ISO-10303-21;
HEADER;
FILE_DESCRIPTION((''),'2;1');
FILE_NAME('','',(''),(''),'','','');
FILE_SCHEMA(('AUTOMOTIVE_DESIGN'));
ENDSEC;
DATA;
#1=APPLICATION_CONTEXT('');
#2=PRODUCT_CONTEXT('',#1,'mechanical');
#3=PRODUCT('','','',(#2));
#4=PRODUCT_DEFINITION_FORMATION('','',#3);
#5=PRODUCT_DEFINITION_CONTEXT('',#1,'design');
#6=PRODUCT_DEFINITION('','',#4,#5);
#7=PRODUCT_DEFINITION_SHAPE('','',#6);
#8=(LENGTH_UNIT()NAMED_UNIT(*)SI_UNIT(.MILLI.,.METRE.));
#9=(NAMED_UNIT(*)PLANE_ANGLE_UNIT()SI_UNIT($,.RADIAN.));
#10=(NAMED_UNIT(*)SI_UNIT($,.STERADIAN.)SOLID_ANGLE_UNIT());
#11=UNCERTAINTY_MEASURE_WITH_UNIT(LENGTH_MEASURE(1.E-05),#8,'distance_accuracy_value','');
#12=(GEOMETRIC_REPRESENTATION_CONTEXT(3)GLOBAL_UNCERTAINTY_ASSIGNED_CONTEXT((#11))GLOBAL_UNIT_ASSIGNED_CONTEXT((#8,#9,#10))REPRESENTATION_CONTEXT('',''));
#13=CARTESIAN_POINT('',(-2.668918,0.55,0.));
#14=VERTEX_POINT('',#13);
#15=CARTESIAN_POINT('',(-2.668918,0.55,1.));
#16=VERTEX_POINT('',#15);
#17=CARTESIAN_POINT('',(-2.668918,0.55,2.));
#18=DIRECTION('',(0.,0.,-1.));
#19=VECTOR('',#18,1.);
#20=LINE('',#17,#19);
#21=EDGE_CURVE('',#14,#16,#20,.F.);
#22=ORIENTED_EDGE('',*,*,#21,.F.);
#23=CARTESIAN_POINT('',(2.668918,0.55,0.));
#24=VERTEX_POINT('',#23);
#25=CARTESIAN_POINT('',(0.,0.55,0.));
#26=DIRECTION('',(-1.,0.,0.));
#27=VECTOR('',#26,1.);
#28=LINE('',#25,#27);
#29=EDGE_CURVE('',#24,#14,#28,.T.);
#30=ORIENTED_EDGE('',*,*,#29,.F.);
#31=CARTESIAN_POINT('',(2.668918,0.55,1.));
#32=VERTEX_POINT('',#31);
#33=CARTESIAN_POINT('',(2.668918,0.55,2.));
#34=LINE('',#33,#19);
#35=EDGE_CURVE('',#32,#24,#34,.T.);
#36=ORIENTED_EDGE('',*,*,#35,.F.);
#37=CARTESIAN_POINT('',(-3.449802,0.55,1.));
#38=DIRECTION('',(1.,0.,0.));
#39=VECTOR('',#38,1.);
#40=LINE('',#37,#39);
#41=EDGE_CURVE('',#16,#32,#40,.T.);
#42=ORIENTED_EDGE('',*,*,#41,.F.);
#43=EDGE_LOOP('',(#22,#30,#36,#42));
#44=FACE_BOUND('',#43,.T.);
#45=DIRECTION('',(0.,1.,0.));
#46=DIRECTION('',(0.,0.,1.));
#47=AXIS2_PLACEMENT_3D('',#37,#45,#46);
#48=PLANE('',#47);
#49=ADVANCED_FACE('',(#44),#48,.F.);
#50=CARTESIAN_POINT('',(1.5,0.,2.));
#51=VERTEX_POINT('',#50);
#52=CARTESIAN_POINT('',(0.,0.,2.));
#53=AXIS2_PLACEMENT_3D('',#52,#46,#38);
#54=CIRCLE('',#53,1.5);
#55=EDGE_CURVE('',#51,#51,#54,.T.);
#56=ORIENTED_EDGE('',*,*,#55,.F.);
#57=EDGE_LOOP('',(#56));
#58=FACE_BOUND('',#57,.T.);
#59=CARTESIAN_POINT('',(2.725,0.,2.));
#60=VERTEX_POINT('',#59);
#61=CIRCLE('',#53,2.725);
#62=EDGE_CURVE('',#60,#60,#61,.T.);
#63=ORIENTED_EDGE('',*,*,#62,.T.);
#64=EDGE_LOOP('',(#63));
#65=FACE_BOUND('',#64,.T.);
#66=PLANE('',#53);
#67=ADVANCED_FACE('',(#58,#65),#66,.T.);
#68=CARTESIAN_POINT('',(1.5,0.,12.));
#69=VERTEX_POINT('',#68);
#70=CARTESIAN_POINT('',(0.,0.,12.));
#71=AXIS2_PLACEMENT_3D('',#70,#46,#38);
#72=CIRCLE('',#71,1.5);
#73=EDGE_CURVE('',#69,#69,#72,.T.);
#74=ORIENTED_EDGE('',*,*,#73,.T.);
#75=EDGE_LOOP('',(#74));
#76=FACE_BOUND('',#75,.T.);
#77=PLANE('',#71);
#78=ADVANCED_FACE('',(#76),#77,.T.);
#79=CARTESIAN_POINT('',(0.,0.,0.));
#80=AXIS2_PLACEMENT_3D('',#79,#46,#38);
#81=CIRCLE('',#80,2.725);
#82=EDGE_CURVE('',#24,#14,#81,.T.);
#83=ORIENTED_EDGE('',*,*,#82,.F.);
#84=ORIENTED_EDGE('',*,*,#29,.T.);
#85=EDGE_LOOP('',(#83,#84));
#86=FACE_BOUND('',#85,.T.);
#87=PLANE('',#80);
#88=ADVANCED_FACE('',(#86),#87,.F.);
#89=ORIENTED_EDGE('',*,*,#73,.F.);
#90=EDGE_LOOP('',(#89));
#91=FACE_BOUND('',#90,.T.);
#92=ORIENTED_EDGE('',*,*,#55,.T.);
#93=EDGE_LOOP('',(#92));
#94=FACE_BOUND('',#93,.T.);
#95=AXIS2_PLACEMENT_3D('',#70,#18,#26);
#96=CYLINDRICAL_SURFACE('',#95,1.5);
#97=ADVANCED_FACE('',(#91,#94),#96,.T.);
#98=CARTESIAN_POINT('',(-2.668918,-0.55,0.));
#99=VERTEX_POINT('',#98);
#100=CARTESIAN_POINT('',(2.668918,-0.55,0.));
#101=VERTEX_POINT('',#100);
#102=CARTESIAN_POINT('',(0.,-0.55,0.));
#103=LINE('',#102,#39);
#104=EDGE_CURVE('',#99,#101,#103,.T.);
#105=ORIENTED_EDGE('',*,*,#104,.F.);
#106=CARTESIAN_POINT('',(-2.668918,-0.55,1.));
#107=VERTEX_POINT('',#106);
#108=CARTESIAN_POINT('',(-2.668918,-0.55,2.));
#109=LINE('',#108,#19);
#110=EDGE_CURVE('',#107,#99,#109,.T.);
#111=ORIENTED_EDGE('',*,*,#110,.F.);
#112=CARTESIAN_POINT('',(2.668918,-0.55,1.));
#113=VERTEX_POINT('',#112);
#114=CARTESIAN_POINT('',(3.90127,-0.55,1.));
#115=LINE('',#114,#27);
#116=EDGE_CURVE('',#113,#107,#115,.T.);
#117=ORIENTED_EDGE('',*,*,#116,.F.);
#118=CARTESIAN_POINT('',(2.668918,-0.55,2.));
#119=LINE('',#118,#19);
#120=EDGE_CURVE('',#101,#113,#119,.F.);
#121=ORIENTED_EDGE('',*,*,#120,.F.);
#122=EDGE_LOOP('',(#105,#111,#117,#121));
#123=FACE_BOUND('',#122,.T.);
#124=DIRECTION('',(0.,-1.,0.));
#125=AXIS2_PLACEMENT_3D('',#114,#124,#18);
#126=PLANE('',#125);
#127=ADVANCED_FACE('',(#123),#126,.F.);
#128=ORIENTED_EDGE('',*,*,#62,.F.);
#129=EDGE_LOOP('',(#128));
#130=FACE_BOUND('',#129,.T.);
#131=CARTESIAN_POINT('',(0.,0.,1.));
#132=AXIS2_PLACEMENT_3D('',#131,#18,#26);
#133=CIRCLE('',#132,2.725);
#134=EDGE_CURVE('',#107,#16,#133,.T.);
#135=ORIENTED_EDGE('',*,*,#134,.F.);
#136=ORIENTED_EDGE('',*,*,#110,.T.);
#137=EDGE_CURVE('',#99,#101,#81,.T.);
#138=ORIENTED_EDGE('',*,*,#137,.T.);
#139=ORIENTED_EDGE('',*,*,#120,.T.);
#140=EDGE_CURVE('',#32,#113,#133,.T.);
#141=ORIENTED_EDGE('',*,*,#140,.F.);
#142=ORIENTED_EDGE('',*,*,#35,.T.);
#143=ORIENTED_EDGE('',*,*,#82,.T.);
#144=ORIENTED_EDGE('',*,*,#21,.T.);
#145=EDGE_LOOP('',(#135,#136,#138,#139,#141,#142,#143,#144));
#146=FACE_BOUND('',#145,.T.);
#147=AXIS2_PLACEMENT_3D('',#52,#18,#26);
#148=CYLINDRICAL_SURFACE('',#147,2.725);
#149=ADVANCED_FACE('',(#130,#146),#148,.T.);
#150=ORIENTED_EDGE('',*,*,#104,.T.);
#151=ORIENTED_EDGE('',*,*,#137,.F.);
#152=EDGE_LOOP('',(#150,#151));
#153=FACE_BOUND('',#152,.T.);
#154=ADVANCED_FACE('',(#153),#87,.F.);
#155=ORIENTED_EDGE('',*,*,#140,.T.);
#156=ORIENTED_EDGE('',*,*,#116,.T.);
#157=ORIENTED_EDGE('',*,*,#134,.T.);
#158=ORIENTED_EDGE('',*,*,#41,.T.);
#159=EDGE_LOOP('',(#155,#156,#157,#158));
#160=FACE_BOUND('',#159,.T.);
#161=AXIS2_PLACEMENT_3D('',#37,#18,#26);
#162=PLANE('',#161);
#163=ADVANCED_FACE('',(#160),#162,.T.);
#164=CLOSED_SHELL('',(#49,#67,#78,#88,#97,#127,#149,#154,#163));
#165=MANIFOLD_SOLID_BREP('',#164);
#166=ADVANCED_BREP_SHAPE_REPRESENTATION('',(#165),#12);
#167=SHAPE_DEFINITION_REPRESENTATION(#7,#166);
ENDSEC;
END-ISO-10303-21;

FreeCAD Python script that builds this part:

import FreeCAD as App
import Part
import Sketcher

V = App.Vector


def add_polygon(sketch, points):
    """Adds a closed chain of lines whose ends are joined by coincident constraints."""
    first, n = sketch.GeometryCount, len(points)
    for a, b in zip(points, points[1:] + points[:1]):
        sketch.addGeometry(Part.LineSegment(App.Vector(*a, 0), App.Vector(*b, 0)), False)
    for i in range(n):
        sketch.addConstraint(Sketcher.Constraint("Coincident", first + i, 2, first + (i + 1) % n, 1))

doc = App.newDocument("Part")
body = doc.addObject("PartDesign::Body", "Body")

# Sketch on XY plane
sketch1 = body.newObject("Sketcher::SketchObject", "Sketch")
sketch1.AttachmentSupport = (doc.getObject("XY_Plane"), [""])
sketch1.MapMode = "FlatFace"
sketch1.addGeometry(Part.Circle(V(0, 0, 0), V(0, 0, 1), 2.7), False)
sketch1.addConstraint([
    Sketcher.Constraint("Coincident", 0, 3, -1, 1),
    Sketcher.Constraint("Diameter", 0, 5.45),
])
pad1 = body.newObject("PartDesign::Pad", "Pad")
pad1.Profile = sketch1
pad1.Length = 2

# Sketch on XY plane
sketch2 = body.newObject("Sketcher::SketchObject", "Sketch001")
sketch2.AttachmentSupport = (doc.getObject("XY_Plane"), [""])
sketch2.MapMode = "FlatFace"
add_polygon(sketch2, [(-3.4, 0.6), (3.9, 0.6), (3.9, -0.6), (-3.4, -0.6)])  # lines 0-3
sketch2.addConstraint([
    Sketcher.Constraint("Horizontal", 0),
    Sketcher.Constraint("Vertical", 1),
    Sketcher.Constraint("Horizontal", 2),
    Sketcher.Constraint("Vertical", 3),
    Sketcher.Constraint("DistanceY", 1, 2, 1, 1, 1.1),
    Sketcher.Constraint("DistanceY", -1, 1, 0, 2, 0.55),
    Sketcher.Constraint("DistanceX", 0, 1, 0, 2, 7.351071),
    Sketcher.Constraint("DistanceX", 2, 2, -1, 1, 3.449802),
])
pocket1 = body.newObject("PartDesign::Pocket", "Pocket")
pocket1.Profile = sketch2
pocket1.Length = 1
pocket1.Reversed = True

# Sketch on XY plane
sketch3 = body.newObject("Sketcher::SketchObject", "Sketch002")
sketch3.AttachmentSupport = (doc.getObject("XY_Plane"), [""])
sketch3.MapMode = "FlatFace"
sketch3.AttachmentOffset = App.Placement(V(0, 0, 2), App.Rotation())
sketch3.addGeometry(Part.Circle(V(0, 0, 0), V(0, 0, 1), 1.5), False)
sketch3.addConstraint([
    Sketcher.Constraint("Coincident", 0, 3, -1, 1),
    Sketcher.Constraint("Diameter", 0, 3.0),
])
pad2 = body.newObject("PartDesign::Pad", "Pad001")
pad2.Profile = sketch3
pad2.Length = 10

doc.recompute()
